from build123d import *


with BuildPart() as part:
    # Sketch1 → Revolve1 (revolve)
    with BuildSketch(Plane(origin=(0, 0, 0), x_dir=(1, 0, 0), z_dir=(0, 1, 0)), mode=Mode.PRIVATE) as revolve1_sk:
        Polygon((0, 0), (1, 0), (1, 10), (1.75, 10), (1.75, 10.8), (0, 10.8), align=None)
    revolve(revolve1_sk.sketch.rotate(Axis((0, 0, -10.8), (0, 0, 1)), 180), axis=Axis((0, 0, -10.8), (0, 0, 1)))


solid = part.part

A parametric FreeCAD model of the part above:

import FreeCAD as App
import Part
import Sketcher
from FreeCAD import Vector

doc = App.newDocument("Part")
params = doc.addObject("Spreadsheet::Sheet", "Params")
for row, (alias, value) in enumerate([
    ("sketch1_width", "1 mm"),
    ("sketch1_height", "10 mm"),
    ("sketch1_height2", "0.8 mm"),
    ("sketch1_width2", "0.75 mm"),
    ("revolution_angle", "360 deg"),
], start=1):
    params.set(f"A{row}", alias)
    params.set(f"B{row}", "=" + value)
    params.setAlias(f"B{row}", alias)

body = doc.addObject("PartDesign::Body", "Body")

# Sketch on XZ plane
sketch1 = body.newObject("Sketcher::SketchObject", "Sketch")
sketch1.AttachmentSupport = (doc.getObject("XZ_Plane"), [""])
sketch1.MapMode = "FlatFace"
sketch1.addGeometry(Part.LineSegment(Vector(0, 0, 0), Vector(1, 0, 0)), False)
sketch1.addGeometry(Part.LineSegment(Vector(1, 0, 0), Vector(1, -10, 0)), False)
sketch1.addGeometry(Part.LineSegment(Vector(1, -10, 0), Vector(1.8, -10, 0)), False)
sketch1.addGeometry(Part.LineSegment(Vector(1.8, -10, 0), Vector(1.8, -10.8, 0)), False)
sketch1.addGeometry(Part.LineSegment(Vector(1.8, -10.8, 0), Vector(0, -10.8, 0)), False)
sketch1.addGeometry(Part.LineSegment(Vector(0, -10.8, 0), Vector(0, 0, 0)), False)
sketch1.addConstraint(Sketcher.Constraint("Coincident", 0, 2, 1, 1))
sketch1.addConstraint(Sketcher.Constraint("Coincident", 1, 2, 2, 1))
sketch1.addConstraint(Sketcher.Constraint("Coincident", 2, 2, 3, 1))
sketch1.addConstraint(Sketcher.Constraint("Coincident", 3, 2, 4, 1))
sketch1.addConstraint(Sketcher.Constraint("Coincident", 4, 2, 5, 1))
sketch1.addConstraint(Sketcher.Constraint("Coincident", 5, 2, 0, 1))
sketch1.addConstraint(Sketcher.Constraint("Horizontal", 0))
sketch1.addConstraint(Sketcher.Constraint("Vertical", 1))
sketch1.addConstraint(Sketcher.Constraint("Horizontal", 2))
sketch1.addConstraint(Sketcher.Constraint("Vertical", 3))
sketch1.addConstraint(Sketcher.Constraint("Horizontal", 4))
sketch1.addConstraint(Sketcher.Constraint("Vertical", 5))
sketch1.addConstraint(Sketcher.Constraint("Coincident", 5, 2, -1, 1))
sketch1.addConstraint(Sketcher.Constraint("DistanceX", 0, 1, 0, 2, 1.0))
sketch1.addConstraint(Sketcher.Constraint("DistanceY", 1, 2, 1, 1, 10.0))
sketch1.addConstraint(Sketcher.Constraint("DistanceY", 3, 2, 3, 1, 0.8))
sketch1.addConstraint(Sketcher.Constraint("DistanceX", 2, 1, 2, 2, 0.75))
sketch1.setExpression("Constraints[13]", "Params.sketch1_width")
sketch1.setExpression("Constraints[14]", "Params.sketch1_height")
sketch1.setExpression("Constraints[15]", "Params.sketch1_height2")
sketch1.setExpression("Constraints[16]", "Params.sketch1_width2")
revolution = body.newObject("PartDesign::Revolution", "Revolution")
revolution.Profile = sketch1
revolution.ReferenceAxis = (sketch1, ["V_Axis"])
revolution.setExpression("Angle", "Params.revolution_angle")

doc.recompute()
